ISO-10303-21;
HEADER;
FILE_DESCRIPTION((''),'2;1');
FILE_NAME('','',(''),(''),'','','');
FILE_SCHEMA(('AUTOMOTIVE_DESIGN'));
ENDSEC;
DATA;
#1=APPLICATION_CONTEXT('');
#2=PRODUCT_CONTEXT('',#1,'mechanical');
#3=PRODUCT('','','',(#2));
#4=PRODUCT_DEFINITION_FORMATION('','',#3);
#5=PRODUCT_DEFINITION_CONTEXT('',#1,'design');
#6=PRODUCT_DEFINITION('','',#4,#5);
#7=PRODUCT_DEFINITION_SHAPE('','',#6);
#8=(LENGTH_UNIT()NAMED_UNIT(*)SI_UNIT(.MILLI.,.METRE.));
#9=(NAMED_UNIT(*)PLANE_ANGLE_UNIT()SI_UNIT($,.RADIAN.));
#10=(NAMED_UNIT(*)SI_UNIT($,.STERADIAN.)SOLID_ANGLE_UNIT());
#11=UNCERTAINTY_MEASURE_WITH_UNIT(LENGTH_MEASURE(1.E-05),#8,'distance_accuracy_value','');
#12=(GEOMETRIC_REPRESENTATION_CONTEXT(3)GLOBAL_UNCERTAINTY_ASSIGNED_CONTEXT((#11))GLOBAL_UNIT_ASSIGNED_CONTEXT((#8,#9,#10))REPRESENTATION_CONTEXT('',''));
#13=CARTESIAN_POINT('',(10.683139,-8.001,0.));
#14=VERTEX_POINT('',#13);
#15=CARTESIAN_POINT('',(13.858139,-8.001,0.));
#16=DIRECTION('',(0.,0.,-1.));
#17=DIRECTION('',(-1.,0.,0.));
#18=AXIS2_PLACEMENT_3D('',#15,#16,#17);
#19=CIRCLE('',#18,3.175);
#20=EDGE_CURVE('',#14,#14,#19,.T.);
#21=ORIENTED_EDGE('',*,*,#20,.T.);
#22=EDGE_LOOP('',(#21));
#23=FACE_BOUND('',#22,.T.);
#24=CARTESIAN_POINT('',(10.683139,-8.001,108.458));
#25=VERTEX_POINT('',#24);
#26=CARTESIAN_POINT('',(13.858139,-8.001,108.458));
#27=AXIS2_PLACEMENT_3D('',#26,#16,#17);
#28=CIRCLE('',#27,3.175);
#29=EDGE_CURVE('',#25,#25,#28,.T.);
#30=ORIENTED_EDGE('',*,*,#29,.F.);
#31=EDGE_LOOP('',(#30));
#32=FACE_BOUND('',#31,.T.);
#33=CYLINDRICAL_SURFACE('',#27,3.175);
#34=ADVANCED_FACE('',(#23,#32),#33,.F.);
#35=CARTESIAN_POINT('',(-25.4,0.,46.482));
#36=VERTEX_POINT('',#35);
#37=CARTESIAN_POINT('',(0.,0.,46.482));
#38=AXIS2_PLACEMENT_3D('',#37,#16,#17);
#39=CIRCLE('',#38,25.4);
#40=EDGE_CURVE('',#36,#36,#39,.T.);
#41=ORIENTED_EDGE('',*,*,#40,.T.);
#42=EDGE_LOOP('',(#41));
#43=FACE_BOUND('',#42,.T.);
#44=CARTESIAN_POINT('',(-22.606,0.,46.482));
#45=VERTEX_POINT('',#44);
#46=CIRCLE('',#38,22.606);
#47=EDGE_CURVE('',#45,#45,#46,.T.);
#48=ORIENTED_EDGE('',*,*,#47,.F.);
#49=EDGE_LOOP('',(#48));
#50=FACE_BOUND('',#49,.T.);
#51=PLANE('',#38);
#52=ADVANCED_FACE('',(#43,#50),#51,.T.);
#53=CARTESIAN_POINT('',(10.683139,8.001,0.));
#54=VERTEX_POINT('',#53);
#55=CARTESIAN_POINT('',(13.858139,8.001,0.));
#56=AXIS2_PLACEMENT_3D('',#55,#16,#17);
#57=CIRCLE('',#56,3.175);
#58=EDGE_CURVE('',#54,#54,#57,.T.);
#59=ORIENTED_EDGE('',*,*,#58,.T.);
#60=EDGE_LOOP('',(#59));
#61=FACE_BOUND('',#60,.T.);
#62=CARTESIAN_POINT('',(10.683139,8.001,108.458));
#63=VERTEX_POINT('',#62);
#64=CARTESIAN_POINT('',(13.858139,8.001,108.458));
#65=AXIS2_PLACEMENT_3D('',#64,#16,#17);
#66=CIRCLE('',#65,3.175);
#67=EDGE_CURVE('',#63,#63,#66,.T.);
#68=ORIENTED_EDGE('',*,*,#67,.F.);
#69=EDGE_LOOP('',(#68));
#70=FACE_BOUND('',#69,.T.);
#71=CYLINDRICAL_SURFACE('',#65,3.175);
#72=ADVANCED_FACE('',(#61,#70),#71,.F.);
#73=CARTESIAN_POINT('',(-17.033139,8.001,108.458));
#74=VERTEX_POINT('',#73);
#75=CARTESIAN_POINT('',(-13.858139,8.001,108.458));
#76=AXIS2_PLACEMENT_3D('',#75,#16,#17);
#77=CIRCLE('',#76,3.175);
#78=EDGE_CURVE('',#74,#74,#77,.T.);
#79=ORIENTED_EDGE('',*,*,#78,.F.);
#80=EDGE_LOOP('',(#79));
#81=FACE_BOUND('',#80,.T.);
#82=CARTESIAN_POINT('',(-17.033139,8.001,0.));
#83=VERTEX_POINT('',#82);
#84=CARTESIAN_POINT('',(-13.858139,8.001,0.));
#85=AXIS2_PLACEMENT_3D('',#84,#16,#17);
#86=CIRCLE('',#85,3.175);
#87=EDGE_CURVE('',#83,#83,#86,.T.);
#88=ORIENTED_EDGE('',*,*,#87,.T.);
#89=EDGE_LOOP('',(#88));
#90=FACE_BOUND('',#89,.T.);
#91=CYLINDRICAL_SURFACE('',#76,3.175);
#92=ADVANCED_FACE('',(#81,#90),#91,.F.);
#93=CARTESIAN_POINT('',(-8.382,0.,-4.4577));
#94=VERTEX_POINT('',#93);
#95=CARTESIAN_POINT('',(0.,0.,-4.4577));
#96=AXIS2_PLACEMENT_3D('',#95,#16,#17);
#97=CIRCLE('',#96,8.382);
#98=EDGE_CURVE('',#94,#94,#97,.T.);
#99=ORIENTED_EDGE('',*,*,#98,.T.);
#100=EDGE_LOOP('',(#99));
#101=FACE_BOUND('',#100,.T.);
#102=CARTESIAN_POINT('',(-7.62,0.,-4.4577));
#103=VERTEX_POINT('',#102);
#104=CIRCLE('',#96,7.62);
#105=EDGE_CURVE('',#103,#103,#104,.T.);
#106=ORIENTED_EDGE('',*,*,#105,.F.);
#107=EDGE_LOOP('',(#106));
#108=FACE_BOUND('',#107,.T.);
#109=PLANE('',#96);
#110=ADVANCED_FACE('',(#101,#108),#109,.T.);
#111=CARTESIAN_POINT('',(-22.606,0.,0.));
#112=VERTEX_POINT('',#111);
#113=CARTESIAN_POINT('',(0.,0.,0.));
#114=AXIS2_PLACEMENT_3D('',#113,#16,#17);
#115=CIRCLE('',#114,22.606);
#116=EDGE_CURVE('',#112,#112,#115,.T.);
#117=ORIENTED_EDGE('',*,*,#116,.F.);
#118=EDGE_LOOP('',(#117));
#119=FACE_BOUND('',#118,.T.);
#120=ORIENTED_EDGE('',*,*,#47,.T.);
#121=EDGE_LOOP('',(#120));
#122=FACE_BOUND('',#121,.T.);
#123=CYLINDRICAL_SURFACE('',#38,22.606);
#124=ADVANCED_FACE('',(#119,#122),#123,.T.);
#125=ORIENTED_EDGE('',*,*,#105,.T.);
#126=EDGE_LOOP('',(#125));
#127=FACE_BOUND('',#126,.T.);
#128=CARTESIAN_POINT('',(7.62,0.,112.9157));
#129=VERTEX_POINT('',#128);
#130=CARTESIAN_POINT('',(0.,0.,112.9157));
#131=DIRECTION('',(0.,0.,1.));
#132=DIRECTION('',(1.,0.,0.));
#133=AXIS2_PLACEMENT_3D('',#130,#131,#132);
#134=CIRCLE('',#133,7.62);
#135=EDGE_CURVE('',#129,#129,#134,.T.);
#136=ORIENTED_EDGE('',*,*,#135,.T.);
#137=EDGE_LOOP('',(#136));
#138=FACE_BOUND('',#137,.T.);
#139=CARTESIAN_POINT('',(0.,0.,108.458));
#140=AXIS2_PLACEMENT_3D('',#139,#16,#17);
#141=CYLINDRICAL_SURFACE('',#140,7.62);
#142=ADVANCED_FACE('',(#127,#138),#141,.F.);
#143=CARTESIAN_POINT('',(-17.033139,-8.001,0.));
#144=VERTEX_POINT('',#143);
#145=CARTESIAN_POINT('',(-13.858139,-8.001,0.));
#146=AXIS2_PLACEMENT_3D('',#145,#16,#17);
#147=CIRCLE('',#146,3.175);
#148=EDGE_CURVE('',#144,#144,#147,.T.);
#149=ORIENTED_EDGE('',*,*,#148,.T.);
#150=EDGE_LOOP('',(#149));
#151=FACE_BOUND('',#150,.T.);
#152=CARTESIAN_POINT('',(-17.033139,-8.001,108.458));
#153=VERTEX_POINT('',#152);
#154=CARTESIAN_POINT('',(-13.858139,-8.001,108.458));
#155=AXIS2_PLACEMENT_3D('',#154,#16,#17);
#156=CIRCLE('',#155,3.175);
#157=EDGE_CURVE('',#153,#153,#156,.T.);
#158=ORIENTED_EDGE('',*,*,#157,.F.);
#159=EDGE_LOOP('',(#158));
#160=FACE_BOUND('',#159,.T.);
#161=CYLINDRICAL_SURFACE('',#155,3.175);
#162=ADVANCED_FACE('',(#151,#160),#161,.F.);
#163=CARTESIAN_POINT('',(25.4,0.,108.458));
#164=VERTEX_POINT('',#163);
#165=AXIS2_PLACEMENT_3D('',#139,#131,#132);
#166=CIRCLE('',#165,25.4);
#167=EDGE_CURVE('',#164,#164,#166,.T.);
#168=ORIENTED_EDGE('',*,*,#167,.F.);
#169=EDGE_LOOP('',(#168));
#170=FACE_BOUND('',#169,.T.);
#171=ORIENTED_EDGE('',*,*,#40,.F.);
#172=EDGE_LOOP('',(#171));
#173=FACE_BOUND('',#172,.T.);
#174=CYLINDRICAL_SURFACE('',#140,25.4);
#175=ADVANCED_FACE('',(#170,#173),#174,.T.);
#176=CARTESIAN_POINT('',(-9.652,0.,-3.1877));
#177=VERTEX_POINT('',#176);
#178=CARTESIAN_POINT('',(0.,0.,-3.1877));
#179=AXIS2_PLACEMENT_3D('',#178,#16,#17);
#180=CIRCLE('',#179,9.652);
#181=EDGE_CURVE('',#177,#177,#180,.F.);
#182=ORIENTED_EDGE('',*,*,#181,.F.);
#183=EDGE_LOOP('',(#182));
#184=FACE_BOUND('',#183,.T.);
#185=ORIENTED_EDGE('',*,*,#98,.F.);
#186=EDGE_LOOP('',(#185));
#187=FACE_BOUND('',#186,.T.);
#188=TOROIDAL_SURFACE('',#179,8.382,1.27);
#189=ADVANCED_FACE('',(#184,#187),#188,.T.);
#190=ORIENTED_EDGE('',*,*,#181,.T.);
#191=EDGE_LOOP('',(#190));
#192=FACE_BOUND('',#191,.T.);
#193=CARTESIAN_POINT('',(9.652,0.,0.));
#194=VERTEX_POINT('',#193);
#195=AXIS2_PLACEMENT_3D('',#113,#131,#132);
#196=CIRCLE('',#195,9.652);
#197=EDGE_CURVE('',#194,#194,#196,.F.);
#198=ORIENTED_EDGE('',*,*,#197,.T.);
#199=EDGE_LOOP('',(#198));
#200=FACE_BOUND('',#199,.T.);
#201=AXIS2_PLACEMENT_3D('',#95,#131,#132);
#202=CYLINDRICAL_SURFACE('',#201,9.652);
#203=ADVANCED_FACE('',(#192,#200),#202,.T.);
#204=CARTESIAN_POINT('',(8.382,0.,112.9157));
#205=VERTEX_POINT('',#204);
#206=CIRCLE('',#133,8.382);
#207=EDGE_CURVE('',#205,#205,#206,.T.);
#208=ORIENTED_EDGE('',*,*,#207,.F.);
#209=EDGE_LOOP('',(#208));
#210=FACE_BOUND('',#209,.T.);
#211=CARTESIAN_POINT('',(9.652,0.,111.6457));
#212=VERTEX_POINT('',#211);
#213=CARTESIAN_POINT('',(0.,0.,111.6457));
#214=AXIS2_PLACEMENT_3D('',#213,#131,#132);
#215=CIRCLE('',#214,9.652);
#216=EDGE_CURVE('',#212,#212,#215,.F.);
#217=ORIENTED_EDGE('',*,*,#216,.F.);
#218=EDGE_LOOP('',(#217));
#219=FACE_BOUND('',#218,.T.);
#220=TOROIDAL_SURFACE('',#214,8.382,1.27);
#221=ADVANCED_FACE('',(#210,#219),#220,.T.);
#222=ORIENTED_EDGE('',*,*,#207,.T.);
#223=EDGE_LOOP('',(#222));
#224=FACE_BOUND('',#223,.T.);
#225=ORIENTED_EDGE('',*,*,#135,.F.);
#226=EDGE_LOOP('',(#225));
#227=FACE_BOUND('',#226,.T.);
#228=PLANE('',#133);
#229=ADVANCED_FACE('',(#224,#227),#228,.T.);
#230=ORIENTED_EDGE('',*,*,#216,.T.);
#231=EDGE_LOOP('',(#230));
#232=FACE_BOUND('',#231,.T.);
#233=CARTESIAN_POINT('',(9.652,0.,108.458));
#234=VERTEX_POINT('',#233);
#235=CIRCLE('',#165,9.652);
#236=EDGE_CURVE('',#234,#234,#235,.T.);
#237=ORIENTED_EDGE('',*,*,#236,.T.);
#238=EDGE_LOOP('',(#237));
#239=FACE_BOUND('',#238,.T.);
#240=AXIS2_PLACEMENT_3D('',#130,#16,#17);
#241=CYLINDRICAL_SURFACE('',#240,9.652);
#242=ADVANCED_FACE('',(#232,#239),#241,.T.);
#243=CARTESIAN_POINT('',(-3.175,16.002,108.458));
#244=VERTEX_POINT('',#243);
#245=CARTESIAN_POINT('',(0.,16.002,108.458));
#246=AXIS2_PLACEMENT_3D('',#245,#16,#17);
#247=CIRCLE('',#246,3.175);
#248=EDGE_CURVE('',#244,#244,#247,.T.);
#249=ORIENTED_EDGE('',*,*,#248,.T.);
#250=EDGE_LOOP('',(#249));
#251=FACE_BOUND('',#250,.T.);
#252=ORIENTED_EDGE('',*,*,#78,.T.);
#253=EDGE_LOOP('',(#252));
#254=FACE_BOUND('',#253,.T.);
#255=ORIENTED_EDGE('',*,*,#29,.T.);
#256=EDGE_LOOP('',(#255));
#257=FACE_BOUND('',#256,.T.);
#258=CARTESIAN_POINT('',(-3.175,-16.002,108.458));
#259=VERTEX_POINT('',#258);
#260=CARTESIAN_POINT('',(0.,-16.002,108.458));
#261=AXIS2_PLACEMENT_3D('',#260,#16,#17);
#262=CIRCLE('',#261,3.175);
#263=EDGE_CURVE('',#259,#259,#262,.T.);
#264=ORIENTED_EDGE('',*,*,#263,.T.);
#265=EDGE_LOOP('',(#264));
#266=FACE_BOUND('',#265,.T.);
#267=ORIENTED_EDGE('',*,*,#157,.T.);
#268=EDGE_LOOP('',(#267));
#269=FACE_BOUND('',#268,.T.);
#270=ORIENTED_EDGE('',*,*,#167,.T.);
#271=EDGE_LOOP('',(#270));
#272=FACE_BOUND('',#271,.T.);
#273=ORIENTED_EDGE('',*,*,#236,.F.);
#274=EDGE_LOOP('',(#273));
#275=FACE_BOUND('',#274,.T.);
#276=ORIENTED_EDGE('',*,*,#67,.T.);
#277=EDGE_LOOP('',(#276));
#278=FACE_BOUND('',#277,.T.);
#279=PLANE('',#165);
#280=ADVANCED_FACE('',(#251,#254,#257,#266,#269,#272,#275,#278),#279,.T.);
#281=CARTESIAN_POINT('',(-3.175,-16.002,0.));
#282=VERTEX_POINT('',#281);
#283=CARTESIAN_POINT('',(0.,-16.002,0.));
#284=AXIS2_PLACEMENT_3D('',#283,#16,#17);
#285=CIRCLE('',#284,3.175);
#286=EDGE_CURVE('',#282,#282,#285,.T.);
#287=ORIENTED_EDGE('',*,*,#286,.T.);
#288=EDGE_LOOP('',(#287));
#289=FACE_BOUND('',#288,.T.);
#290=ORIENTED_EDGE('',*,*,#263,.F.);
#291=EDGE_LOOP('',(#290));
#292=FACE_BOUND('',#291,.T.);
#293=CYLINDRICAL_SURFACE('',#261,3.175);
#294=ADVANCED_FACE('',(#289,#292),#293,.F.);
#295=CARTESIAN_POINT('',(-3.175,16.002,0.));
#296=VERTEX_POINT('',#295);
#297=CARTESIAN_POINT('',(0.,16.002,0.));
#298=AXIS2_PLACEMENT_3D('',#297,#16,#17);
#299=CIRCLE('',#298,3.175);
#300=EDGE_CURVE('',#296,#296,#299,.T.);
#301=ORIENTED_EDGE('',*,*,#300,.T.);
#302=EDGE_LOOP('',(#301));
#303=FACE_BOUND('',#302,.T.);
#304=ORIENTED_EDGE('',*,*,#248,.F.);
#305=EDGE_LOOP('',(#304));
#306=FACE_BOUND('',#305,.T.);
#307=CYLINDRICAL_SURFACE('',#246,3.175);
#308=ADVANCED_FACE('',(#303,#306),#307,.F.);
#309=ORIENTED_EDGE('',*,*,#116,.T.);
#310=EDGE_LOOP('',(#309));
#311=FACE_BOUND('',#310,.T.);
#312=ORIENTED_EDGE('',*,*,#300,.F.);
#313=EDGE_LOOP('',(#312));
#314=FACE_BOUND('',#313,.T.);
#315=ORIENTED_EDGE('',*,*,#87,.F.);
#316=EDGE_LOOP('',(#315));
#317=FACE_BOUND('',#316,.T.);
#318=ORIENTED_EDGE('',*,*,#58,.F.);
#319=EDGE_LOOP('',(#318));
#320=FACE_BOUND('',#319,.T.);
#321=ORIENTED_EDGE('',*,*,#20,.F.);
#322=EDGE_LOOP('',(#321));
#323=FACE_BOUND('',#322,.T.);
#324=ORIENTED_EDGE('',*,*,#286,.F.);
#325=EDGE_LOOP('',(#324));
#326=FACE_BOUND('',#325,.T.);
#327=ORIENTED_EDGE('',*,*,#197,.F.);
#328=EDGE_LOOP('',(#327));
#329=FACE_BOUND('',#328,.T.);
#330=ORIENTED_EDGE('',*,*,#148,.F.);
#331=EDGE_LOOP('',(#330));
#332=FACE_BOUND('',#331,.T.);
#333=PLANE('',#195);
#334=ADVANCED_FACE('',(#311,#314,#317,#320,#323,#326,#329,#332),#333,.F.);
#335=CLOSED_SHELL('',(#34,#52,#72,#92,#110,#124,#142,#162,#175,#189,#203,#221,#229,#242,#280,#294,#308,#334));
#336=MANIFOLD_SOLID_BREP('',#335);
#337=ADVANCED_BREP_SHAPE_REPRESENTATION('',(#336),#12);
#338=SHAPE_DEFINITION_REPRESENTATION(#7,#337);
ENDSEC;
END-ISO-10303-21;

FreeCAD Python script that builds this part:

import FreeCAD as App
import Part
import Sketcher
Q = App.Units.Quantity


def edges_at(feature, points):
    """Names of the edges that pass closest to the given points."""
    edges = feature.Shape.Edges
    near = lambda p: min(range(len(edges)), key=lambda i: edges[i].distToShape(Part.Vertex(*p))[0])
    return sorted({f"Edge{near(p) + 1}" for p in points})

doc = App.newDocument("Part")
body = doc.addObject("PartDesign::Body", "Body")

# Sketch on XY plane
sketch1 = body.newObject("Sketcher::SketchObject", "Sketch")
sketch1.AttachmentSupport = (doc.getObject("XY_Plane"), [""])
sketch1.MapMode = "FlatFace"
sketch1.addGeometry(Part.Circle(App.Vector(0, 0, 0), App.Vector(0, 0, 1), 25), False)
sketch1.addConstraint(Sketcher.Constraint("Coincident", 0, 3, -1, 1))
sketch1.addConstraint(Sketcher.Constraint("Diameter", 0, Q("2 in")))
pad1 = body.newObject("PartDesign::Pad", "Pad")
pad1.Profile = sketch1
pad1.Length = Q("4.27 in")

# Sketch on XY plane
sketch2 = body.newObject("Sketcher::SketchObject", "Sketch001")
sketch2.AttachmentSupport = (doc.getObject("XY_Plane"), [""])
sketch2.MapMode = "FlatFace"
sketch2.addGeometry(Part.Circle(App.Vector(0, 0, 0), App.Vector(0, 0, 1), 7.6), False)
sketch2.addGeometry(Part.Circle(App.Vector(13.9, 8, 0), App.Vector(0, 0, 1), 3.2), False)
sketch2.addGeometry(Part.Circle(App.Vector(0, 16, 0), App.Vector(0, 0, 1), 3.2), False)
sketch2.addGeometry(Part.Circle(App.Vector(-13.9, 8, 0), App.Vector(0, 0, 1), 3.2), False)
sketch2.addGeometry(Part.Circle(App.Vector(-13.9, -8, 0), App.Vector(0, 0, 1), 3.2), False)
sketch2.addGeometry(Part.Circle(App.Vector(0, -16, 0), App.Vector(0, 0, 1), 3.2), False)
sketch2.addGeometry(Part.Circle(App.Vector(13.9, -8, 0), App.Vector(0, 0, 1), 3.2), False)
sketch2.addConstraint(Sketcher.Constraint("Coincident", 0, 3, -1, 1))
sketch2.addConstraint(Sketcher.Constraint("Equal", 1, 2))
sketch2.addConstraint(Sketcher.Constraint("Equal", 2, 3))
sketch2.addConstraint(Sketcher.Constraint("Equal", 3, 4))
sketch2.addConstraint(Sketcher.Constraint("Equal", 4, 5))
sketch2.addConstraint(Sketcher.Constraint("Equal", 5, 6))
sketch2.addConstraint(Sketcher.Constraint("Symmetric", 1, 3, 4, 3, -1, 1))
sketch2.addConstraint(Sketcher.Constraint("Symmetric", 2, 3, 5, 3, -1, 1))
sketch2.addConstraint(Sketcher.Constraint("Symmetric", 3, 3, 6, 3, -1, 1))
sketch2.addConstraint(Sketcher.Constraint("Symmetric", 1, 3, 3, 3, -2))
sketch2.addConstraint(Sketcher.Constraint("PointOnObject", 2, 3, -2))
sketch2.addConstraint(Sketcher.Constraint("Diameter", 0, Q("0.6 in")))
sketch2.addConstraint(Sketcher.Constraint("Diameter", 1, Q("0.25 in")))
sketch2.addConstraint(Sketcher.Constraint("DistanceY", -1, 1, 2, 3, Q("0.63 in")))
sketch2.addConstraint(Sketcher.Constraint("DistanceY", 4, 3, 3, 3, Q("0.63 in")))
sketch2.addConstraint(Sketcher.Constraint("DistanceX", -1, 1, 1, 3, Q("13.858139 mm")))
pocket1 = body.newObject("PartDesign::Pocket", "Pocket")
pocket1.Profile = sketch2
pocket1.Length = Q("4.27 in")
pocket1.Reversed = True

# Sketch on XY plane
sketch3 = body.newObject("Sketcher::SketchObject", "Sketch002")
sketch3.AttachmentSupport = (doc.getObject("XY_Plane"), [""])
sketch3.MapMode = "FlatFace"
sketch3.addGeometry(Part.Circle(App.Vector(0, 0, 0), App.Vector(0, 0, 1), 25), False)
sketch3.addGeometry(Part.Circle(App.Vector(0, 0, 0), App.Vector(0, 0, 1), 23), False)
sketch3.addConstraint(Sketcher.Constraint("Coincident", 0, 3, -1, 1))
sketch3.addConstraint(Sketcher.Constraint("Coincident", 1, 3, -1, 1))
sketch3.addConstraint(Sketcher.Constraint("Diameter", 0, Q("2 in")))
sketch3.addConstraint(Sketcher.Constraint("Diameter", 1, Q("1.78 in")))
pocket2 = body.newObject("PartDesign::Pocket", "Pocket001")
pocket2.Profile = sketch3
pocket2.Length = Q("1.83 in")
pocket2.Reversed = True

# Sketch on XY plane
sketch4 = body.newObject("Sketcher::SketchObject", "Sketch003")
sketch4.AttachmentSupport = (doc.getObject("XY_Plane"), [""])
sketch4.MapMode = "FlatFace"
sketch4.AttachmentOffset = App.Placement(App.Vector(0, 0, 4.27 * 25.4), App.Rotation())
sketch4.addGeometry(Part.Circle(App.Vector(0, 0, 0), App.Vector(0, 0, 1), 10), False)
sketch4.addGeometry(Part.Circle(App.Vector(0, 0, 0), App.Vector(0, 0, 1), 8), False)
sketch4.addConstraint(Sketcher.Constraint("Coincident", 0, 3, -1, 1))
sketch4.addConstraint(Sketcher.Constraint("Coincident", 1, 3, -1, 1))
sketch4.addConstraint(Sketcher.Constraint("Diameter", 1, Q("0.6 in")))
sketch4.addConstraint(Sketcher.Constraint("Diameter", 0, Q("0.76 in")))
pad2 = body.newObject("PartDesign::Pad", "Pad001")
pad2.Profile = sketch4
pad2.Length = Q("0.1755 in")

# Sketch on XY plane
sketch5 = body.newObject("Sketcher::SketchObject", "Sketch004")
sketch5.AttachmentSupport = (doc.getObject("XY_Plane"), [""])
sketch5.MapMode = "FlatFace"
sketch5.AttachmentOffset = App.Placement(App.Vector(0, 0, -0.1755 * 25.4), App.Rotation())
sketch5.addGeometry(Part.Circle(App.Vector(0, 0, 0), App.Vector(0, 0, 1), 10), False)
sketch5.addGeometry(Part.Circle(App.Vector(0, 0, 0), App.Vector(0, 0, 1), 8), False)
sketch5.addConstraint(Sketcher.Constraint("Coincident", 0, 3, -1, 1))
sketch5.addConstraint(Sketcher.Constraint("Coincident", 1, 3, -1, 1))
sketch5.addConstraint(Sketcher.Constraint("Diameter", 1, Q("0.6 in")))
sketch5.addConstraint(Sketcher.Constraint("Diameter", 0, Q("0.76 in")))
pad3 = body.newObject("PartDesign::Pad", "Pad002")
pad3.Profile = sketch5
pad3.Length = Q("0.1755 in")
doc.recompute()

fillet = body.newObject("PartDesign::Fillet", "Fillet")
fillet.Base = (pad3, edges_at(pad3, [(-9.652, 0, 112.916), (-9.652, 0, -4.458)]))
fillet.Radius = Q("0.05 in")

doc.recompute()
